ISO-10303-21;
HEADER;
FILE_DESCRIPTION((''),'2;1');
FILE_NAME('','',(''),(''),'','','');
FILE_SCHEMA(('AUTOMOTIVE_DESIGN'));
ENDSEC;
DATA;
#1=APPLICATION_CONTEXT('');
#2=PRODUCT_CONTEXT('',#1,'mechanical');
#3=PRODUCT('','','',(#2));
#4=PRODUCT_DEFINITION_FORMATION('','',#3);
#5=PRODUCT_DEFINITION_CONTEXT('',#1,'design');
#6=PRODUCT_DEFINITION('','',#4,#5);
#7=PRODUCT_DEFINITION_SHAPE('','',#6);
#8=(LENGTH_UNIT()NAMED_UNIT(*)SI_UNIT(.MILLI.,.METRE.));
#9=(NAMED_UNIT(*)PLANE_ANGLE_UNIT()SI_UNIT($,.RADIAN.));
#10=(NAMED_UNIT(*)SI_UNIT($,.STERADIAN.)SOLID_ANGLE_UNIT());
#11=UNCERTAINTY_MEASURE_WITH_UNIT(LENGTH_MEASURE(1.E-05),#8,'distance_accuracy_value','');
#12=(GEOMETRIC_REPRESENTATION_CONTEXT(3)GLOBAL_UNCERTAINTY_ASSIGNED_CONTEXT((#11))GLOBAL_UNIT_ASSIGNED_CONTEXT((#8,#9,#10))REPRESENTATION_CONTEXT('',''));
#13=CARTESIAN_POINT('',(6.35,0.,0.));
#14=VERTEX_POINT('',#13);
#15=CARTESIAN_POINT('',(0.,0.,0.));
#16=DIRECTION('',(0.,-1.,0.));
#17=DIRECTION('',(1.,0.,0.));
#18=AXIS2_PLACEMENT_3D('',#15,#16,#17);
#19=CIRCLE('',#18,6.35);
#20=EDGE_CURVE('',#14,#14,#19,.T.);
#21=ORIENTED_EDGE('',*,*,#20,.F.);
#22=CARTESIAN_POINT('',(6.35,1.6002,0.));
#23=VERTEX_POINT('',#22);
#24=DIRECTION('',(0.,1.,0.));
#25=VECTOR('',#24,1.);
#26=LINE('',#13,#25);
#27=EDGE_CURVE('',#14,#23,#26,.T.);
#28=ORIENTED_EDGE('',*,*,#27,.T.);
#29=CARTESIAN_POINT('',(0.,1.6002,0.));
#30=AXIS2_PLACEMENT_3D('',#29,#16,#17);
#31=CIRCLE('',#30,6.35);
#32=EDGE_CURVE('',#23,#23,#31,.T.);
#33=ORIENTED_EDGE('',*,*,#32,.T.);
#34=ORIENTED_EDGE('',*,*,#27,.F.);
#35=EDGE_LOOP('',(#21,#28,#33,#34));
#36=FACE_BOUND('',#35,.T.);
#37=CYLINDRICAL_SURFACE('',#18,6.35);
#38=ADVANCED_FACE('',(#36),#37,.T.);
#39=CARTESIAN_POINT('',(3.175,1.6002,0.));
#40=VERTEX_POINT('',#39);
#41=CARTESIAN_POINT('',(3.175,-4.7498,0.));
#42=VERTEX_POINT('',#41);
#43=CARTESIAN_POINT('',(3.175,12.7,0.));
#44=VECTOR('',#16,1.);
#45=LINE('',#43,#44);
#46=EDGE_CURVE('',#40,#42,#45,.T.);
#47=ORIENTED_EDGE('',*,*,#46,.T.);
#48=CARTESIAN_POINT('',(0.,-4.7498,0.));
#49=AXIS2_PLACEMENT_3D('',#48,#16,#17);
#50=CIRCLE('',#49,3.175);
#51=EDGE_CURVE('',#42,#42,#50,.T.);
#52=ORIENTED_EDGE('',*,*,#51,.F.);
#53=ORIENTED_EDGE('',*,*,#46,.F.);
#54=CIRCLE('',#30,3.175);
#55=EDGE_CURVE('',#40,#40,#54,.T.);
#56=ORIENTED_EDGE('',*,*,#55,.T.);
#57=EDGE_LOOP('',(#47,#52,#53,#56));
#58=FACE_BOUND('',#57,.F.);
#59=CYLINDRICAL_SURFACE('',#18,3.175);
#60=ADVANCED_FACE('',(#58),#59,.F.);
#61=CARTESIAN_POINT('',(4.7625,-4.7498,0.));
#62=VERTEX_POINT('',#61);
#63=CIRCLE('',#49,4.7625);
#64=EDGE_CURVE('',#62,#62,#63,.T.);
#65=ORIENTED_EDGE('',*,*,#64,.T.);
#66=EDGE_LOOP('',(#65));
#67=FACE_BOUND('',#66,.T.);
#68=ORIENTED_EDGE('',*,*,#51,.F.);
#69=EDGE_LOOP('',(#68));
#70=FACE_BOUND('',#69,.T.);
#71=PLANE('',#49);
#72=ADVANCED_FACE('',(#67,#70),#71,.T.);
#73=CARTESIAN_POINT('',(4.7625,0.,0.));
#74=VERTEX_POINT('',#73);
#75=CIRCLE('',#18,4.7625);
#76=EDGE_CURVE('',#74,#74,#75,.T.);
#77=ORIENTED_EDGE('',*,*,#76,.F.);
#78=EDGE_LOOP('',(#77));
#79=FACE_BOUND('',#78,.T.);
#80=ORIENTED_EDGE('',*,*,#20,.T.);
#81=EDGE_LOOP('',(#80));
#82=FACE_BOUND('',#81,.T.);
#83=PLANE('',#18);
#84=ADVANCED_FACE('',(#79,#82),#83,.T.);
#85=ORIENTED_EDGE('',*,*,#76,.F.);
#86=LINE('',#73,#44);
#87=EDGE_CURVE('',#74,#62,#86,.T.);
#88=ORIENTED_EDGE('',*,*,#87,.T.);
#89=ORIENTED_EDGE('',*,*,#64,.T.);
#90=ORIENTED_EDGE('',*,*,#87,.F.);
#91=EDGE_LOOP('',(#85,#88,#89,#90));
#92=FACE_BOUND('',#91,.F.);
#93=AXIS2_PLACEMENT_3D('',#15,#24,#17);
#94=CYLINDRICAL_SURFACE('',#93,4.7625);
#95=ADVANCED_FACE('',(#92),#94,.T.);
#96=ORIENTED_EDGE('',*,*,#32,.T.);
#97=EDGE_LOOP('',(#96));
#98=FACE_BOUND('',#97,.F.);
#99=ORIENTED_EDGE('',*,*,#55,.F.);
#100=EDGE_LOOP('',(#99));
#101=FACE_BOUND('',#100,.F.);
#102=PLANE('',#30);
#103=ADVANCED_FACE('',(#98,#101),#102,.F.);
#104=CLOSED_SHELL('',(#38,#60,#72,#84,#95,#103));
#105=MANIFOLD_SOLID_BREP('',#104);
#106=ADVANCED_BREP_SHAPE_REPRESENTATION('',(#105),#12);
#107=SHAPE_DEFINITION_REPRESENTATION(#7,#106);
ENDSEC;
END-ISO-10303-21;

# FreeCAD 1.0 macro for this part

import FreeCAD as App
import Part
import Sketcher
Q = App.Units.Quantity

doc = App.newDocument("Part")
body = doc.addObject("PartDesign::Body", "Body")

# Sketch on XZ plane
sketch1 = body.newObject("Sketcher::SketchObject", "Sketch")
sketch1.AttachmentSupport = (doc.getObject("XZ_Plane"), [""])
sketch1.MapMode = "FlatFace"
sketch1.addGeometry(Part.Circle(App.Vector(0, 0, 0), App.Vector(0, 0, 1), 6), False)
sketch1.addConstraint([
    Sketcher.Constraint("Coincident", 0, 3, -1, 1),
    Sketcher.Constraint("Diameter", 0, Q("0.5 in")),
])
pad1 = body.newObject("PartDesign::Pad", "Pad")
pad1.Profile = sketch1
pad1.Length = Q("0.063 in")
pad1.Reversed = True

# Sketch on XZ plane
sketch2 = body.newObject("Sketcher::SketchObject", "Sketch001")
sketch2.AttachmentSupport = (doc.getObject("XZ_Plane"), [""])
sketch2.MapMode = "FlatFace"
sketch2.addGeometry(Part.Circle(App.Vector(0, 0, 0), App.Vector(0, 0, 1), 4.8), False)
sketch2.addConstraint([
    Sketcher.Constraint("Coincident", 0, 3, -1, 1),
    Sketcher.Constraint("Diameter", 0, Q("0.375 in")),
])
pad2 = body.newObject("PartDesign::Pad", "Pad001")
pad2.Profile = sketch2
pad2.Length = Q("0.187 in")

# Sketch on XZ plane
sketch3 = body.newObject("Sketcher::SketchObject", "Sketch002")
sketch3.AttachmentSupport = (doc.getObject("XZ_Plane"), [""])
sketch3.MapMode = "FlatFace"
sketch3.addGeometry(Part.Circle(App.Vector(0, 0, 0), App.Vector(0, 0, 1), 3.2), False)
sketch3.addConstraint([
    Sketcher.Constraint("Coincident", 0, 3, -1, 1),
    Sketcher.Constraint("Diameter", 0, Q("0.25 in")),
])
pocket1 = body.newObject("PartDesign::Pocket", "Pocket")
pocket1.Profile = sketch3
pocket1.Length = Q("1 in")
pocket1.Midplane = True

doc.recompute()
